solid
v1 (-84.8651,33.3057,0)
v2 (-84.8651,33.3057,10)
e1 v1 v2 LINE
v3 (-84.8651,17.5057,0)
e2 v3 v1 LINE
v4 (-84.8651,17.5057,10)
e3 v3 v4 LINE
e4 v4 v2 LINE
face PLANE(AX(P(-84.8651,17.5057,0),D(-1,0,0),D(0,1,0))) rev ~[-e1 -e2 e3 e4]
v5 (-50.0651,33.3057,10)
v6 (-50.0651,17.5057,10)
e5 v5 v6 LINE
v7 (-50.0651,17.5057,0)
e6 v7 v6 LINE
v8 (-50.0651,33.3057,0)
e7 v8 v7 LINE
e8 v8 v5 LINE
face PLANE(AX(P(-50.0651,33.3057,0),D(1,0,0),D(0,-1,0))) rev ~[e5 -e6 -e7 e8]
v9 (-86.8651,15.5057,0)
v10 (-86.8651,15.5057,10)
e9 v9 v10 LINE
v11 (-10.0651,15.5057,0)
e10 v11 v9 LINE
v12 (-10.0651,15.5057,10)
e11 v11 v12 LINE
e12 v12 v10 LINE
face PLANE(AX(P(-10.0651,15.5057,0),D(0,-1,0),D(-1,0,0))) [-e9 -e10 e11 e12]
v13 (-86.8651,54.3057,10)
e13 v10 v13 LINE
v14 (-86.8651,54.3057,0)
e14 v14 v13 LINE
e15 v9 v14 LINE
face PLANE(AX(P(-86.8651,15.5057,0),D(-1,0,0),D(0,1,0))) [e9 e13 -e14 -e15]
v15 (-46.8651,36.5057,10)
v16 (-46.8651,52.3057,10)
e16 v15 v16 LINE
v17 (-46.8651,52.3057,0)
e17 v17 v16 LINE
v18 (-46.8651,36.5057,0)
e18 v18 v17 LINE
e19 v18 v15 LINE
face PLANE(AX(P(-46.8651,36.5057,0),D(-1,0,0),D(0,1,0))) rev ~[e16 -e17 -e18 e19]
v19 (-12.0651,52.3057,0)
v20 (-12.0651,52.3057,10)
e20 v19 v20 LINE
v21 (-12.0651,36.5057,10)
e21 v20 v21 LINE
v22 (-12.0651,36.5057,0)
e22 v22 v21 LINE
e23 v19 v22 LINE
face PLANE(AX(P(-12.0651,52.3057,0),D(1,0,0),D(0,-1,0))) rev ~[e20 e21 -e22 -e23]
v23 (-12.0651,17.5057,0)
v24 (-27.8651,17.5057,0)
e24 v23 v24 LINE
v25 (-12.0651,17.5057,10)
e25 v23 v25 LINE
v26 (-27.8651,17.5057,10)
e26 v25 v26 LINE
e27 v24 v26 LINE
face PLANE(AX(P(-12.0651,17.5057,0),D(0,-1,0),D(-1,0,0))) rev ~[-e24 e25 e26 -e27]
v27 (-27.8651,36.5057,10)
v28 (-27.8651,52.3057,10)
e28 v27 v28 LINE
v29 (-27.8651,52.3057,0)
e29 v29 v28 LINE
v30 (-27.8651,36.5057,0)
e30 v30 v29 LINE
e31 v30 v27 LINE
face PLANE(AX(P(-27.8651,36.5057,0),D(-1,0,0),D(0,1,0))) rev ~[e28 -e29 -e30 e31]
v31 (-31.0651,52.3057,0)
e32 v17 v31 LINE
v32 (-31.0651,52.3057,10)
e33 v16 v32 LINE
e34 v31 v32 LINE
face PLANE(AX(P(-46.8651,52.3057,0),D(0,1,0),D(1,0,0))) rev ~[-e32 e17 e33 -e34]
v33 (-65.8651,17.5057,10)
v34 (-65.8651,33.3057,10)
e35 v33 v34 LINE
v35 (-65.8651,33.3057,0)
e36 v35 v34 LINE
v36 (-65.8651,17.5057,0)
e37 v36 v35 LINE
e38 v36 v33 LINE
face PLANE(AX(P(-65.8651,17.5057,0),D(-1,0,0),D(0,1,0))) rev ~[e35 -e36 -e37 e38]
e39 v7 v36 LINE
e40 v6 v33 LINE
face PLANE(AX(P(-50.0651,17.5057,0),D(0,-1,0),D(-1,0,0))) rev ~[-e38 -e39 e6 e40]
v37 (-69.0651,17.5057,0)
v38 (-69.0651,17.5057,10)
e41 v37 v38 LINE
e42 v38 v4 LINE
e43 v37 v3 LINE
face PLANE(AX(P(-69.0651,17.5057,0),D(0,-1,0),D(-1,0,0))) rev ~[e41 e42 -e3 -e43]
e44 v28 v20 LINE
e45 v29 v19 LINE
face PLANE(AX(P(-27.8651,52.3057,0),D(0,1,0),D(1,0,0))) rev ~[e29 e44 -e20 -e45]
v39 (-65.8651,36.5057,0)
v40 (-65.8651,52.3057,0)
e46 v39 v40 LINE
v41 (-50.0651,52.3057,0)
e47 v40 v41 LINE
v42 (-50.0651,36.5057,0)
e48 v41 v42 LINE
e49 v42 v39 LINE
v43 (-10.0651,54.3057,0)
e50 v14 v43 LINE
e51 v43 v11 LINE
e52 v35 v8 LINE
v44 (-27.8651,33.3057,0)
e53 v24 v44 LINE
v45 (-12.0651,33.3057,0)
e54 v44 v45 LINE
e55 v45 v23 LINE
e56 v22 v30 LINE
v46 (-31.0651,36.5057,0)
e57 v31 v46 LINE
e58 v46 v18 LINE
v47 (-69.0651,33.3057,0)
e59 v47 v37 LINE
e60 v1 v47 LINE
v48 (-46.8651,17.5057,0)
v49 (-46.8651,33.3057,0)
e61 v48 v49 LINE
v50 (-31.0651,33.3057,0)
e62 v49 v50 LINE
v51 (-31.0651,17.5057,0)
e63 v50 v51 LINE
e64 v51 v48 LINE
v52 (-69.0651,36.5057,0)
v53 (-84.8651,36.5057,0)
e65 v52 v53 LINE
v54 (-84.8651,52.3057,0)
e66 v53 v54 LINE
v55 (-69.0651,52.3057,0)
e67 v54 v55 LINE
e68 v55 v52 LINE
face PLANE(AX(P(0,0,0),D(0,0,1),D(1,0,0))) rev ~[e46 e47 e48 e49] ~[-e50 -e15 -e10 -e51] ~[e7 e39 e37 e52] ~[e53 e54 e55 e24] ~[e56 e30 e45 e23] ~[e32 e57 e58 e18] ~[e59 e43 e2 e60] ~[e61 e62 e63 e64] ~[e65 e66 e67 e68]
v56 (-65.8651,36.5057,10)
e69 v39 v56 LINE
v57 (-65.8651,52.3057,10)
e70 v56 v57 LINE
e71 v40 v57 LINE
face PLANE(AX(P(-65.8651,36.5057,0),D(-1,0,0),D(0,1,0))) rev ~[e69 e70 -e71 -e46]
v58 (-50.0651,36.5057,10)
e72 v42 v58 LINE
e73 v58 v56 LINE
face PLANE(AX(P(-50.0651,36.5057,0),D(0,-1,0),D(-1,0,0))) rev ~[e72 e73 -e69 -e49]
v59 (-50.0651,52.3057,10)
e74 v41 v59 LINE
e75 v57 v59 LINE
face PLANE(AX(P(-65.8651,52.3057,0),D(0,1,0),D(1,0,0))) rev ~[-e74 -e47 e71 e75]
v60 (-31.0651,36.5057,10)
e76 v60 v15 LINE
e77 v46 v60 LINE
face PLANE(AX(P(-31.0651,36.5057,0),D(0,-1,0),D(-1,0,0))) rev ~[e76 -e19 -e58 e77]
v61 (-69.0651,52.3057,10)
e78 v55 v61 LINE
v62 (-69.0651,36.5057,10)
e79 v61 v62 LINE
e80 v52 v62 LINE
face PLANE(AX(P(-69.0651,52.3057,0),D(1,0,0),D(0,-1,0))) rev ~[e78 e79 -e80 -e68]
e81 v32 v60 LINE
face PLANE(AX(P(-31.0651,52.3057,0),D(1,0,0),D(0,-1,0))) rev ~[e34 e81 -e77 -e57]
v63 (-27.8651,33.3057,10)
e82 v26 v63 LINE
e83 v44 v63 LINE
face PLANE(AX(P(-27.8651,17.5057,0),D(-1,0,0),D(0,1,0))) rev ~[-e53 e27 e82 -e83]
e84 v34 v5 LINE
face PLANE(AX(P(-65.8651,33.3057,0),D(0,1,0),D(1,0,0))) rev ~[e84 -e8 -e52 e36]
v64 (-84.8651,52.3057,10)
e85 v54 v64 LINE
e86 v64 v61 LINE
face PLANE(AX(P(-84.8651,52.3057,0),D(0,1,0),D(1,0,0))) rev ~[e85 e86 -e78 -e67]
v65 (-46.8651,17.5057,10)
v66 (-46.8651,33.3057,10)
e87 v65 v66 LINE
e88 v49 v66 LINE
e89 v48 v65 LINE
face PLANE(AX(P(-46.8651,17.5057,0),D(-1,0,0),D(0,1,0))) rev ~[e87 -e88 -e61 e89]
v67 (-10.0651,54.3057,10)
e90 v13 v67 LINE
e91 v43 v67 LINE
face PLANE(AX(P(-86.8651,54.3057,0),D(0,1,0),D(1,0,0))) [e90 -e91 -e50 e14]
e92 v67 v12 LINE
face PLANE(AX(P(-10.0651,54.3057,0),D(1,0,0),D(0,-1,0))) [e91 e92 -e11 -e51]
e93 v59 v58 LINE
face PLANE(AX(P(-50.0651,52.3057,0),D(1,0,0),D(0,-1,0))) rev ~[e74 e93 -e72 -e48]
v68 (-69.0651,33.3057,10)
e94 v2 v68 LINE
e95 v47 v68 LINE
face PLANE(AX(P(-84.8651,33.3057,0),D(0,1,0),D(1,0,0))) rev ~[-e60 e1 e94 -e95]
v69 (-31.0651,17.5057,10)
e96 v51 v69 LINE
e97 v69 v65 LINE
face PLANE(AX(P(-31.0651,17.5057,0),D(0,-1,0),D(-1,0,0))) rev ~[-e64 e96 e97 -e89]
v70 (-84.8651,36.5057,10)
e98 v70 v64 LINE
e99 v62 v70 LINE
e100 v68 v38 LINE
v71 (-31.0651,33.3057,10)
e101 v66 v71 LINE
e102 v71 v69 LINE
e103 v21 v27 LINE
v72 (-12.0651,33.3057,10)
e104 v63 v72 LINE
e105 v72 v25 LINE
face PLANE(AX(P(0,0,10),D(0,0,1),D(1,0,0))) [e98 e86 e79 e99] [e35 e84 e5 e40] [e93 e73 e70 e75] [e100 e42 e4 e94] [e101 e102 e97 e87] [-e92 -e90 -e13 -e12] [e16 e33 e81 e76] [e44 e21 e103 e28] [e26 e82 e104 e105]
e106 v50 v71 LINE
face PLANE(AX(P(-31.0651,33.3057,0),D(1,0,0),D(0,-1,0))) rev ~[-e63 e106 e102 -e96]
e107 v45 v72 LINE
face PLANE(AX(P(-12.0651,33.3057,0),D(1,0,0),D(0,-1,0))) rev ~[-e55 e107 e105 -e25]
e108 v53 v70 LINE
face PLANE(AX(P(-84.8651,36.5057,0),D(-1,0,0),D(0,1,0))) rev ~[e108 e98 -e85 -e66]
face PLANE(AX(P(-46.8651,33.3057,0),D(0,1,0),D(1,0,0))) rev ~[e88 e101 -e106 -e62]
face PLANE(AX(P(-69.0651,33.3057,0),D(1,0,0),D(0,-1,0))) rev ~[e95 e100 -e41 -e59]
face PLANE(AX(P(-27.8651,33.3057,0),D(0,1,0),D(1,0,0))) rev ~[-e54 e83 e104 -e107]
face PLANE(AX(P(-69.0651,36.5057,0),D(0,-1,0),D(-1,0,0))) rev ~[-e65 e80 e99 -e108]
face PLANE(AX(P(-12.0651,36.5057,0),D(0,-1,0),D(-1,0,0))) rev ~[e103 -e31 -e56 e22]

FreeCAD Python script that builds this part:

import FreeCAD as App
import Part
import Sketcher
Q = App.Units.Quantity

doc = App.newDocument("Part")
body = doc.addObject("PartDesign::Body", "Body")

sketch1 = body.newObject("Sketcher::SketchObject", "Sketch")
sketch1.AttachmentSupport = (doc.getObject("XY_Plane"), [""])
sketch1.MapMode = "FlatFace"
sketch1.addGeometry(Part.LineSegment(App.Vector(-10, 54, 0), App.Vector(-87, 54, 0)), False)
sketch1.addGeometry(Part.LineSegment(App.Vector(-87, 54, 0), App.Vector(-87, 16, 0)), False)
sketch1.addGeometry(Part.LineSegment(App.Vector(-87, 16, 0), App.Vector(-10, 16, 0)), False)
sketch1.addGeometry(Part.LineSegment(App.Vector(-10, 16, 0), App.Vector(-10, 54, 0)), False)
sketch1.addGeometry(Part.LineSegment(App.Vector(-85, 18, 0), App.Vector(-85, 33, 0)), False)
sketch1.addGeometry(Part.LineSegment(App.Vector(-85, 33, 0), App.Vector(-69, 33, 0)), False)
sketch1.addGeometry(Part.LineSegment(App.Vector(-69, 33, 0), App.Vector(-69, 18, 0)), False)
sketch1.addGeometry(Part.LineSegment(App.Vector(-69, 18, 0), App.Vector(-85, 18, 0)), False)
sketch1.addGeometry(Part.LineSegment(App.Vector(-66, 33, 0), App.Vector(-50, 33, 0)), False)
sketch1.addGeometry(Part.LineSegment(App.Vector(-50, 33, 0), App.Vector(-50, 18, 0)), False)
sketch1.addGeometry(Part.LineSegment(App.Vector(-50, 18, 0), App.Vector(-66, 18, 0)), False)
sketch1.addGeometry(Part.LineSegment(App.Vector(-66, 18, 0), App.Vector(-66, 33, 0)), False)
sketch1.addGeometry(Part.LineSegment(App.Vector(-47, 33, 0), App.Vector(-31, 33, 0)), False)
sketch1.addGeometry(Part.LineSegment(App.Vector(-31, 33, 0), App.Vector(-31, 18, 0)), False)
sketch1.addGeometry(Part.LineSegment(App.Vector(-31, 18, 0), App.Vector(-47, 18, 0)), False)
sketch1.addGeometry(Part.LineSegment(App.Vector(-47, 18, 0), App.Vector(-47, 33, 0)), False)
sketch1.addGeometry(Part.LineSegment(App.Vector(-28, 33, 0), App.Vector(-12, 33, 0)), False)
sketch1.addGeometry(Part.LineSegment(App.Vector(-12, 33, 0), App.Vector(-12, 18, 0)), False)
sketch1.addGeometry(Part.LineSegment(App.Vector(-12, 18, 0), App.Vector(-28, 18, 0)), False)
sketch1.addGeometry(Part.LineSegment(App.Vector(-28, 18, 0), App.Vector(-28, 33, 0)), False)
sketch1.addGeometry(Part.LineSegment(App.Vector(-85, 52, 0), App.Vector(-69, 52, 0)), False)
sketch1.addGeometry(Part.LineSegment(App.Vector(-69, 52, 0), App.Vector(-69, 37, 0)), False)
sketch1.addGeometry(Part.LineSegment(App.Vector(-69, 37, 0), App.Vector(-85, 37, 0)), False)
sketch1.addGeometry(Part.LineSegment(App.Vector(-85, 37, 0), App.Vector(-85, 52, 0)), False)
sketch1.addGeometry(Part.LineSegment(App.Vector(-66, 52, 0), App.Vector(-50, 52, 0)), False)
sketch1.addGeometry(Part.LineSegment(App.Vector(-50, 52, 0), App.Vector(-50, 37, 0)), False)
sketch1.addGeometry(Part.LineSegment(App.Vector(-50, 37, 0), App.Vector(-66, 37, 0)), False)
sketch1.addGeometry(Part.LineSegment(App.Vector(-66, 37, 0), App.Vector(-66, 52, 0)), False)
sketch1.addGeometry(Part.LineSegment(App.Vector(-47, 52, 0), App.Vector(-31, 52, 0)), False)
sketch1.addGeometry(Part.LineSegment(App.Vector(-31, 52, 0), App.Vector(-31, 37, 0)), False)
sketch1.addGeometry(Part.LineSegment(App.Vector(-31, 37, 0), App.Vector(-47, 37, 0)), False)
sketch1.addGeometry(Part.LineSegment(App.Vector(-47, 37, 0), App.Vector(-47, 52, 0)), False)
sketch1.addGeometry(Part.LineSegment(App.Vector(-28, 52, 0), App.Vector(-12, 52, 0)), False)
sketch1.addGeometry(Part.LineSegment(App.Vector(-12, 52, 0), App.Vector(-12, 37, 0)), False)
sketch1.addGeometry(Part.LineSegment(App.Vector(-12, 37, 0), App.Vector(-28, 37, 0)), False)
sketch1.addGeometry(Part.LineSegment(App.Vector(-28, 37, 0), App.Vector(-28, 52, 0)), False)
sketch1.addConstraint(Sketcher.Constraint("Coincident", 0, 2, 1, 1))
sketch1.addConstraint(Sketcher.Constraint("Coincident", 1, 2, 2, 1))
sketch1.addConstraint(Sketcher.Constraint("Coincident", 2, 2, 3, 1))
sketch1.addConstraint(Sketcher.Constraint("Coincident", 3, 2, 0, 1))
sketch1.addConstraint(Sketcher.Constraint("Coincident", 4, 2, 5, 1))
sketch1.addConstraint(Sketcher.Constraint("Coincident", 5, 2, 6, 1))
sketch1.addConstraint(Sketcher.Constraint("Coincident", 6, 2, 7, 1))
sketch1.addConstraint(Sketcher.Constraint("Coincident", 7, 2, 4, 1))
sketch1.addConstraint(Sketcher.Constraint("Coincident", 8, 2, 9, 1))
sketch1.addConstraint(Sketcher.Constraint("Coincident", 9, 2, 10, 1))
sketch1.addConstraint(Sketcher.Constraint("Coincident", 10, 2, 11, 1))
sketch1.addConstraint(Sketcher.Constraint("Coincident", 11, 2, 8, 1))
sketch1.addConstraint(Sketcher.Constraint("Coincident", 12, 2, 13, 1))
sketch1.addConstraint(Sketcher.Constraint("Coincident", 13, 2, 14, 1))
sketch1.addConstraint(Sketcher.Constraint("Coincident", 14, 2, 15, 1))
sketch1.addConstraint(Sketcher.Constraint("Coincident", 15, 2, 12, 1))
sketch1.addConstraint(Sketcher.Constraint("Coincident", 16, 2, 17, 1))
sketch1.addConstraint(Sketcher.Constraint("Coincident", 17, 2, 18, 1))
sketch1.addConstraint(Sketcher.Constraint("Coincident", 18, 2, 19, 1))
sketch1.addConstraint(Sketcher.Constraint("Coincident", 19, 2, 16, 1))
sketch1.addConstraint(Sketcher.Constraint("Coincident", 20, 2, 21, 1))
sketch1.addConstraint(Sketcher.Constraint("Coincident", 21, 2, 22, 1))
sketch1.addConstraint(Sketcher.Constraint("Coincident", 22, 2, 23, 1))
sketch1.addConstraint(Sketcher.Constraint("Coincident", 23, 2, 20, 1))
sketch1.addConstraint(Sketcher.Constraint("Coincident", 24, 2, 25, 1))
sketch1.addConstraint(Sketcher.Constraint("Coincident", 25, 2, 26, 1))
sketch1.addConstraint(Sketcher.Constraint("Coincident", 26, 2, 27, 1))
sketch1.addConstraint(Sketcher.Constraint("Coincident", 27, 2, 24, 1))
sketch1.addConstraint(Sketcher.Constraint("Coincident", 28, 2, 29, 1))
sketch1.addConstraint(Sketcher.Constraint("Coincident", 29, 2, 30, 1))
sketch1.addConstraint(Sketcher.Constraint("Coincident", 30, 2, 31, 1))
sketch1.addConstraint(Sketcher.Constraint("Coincident", 31, 2, 28, 1))
sketch1.addConstraint(Sketcher.Constraint("Coincident", 32, 2, 33, 1))
sketch1.addConstraint(Sketcher.Constraint("Coincident", 33, 2, 34, 1))
sketch1.addConstraint(Sketcher.Constraint("Coincident", 34, 2, 35, 1))
sketch1.addConstraint(Sketcher.Constraint("Coincident", 35, 2, 32, 1))
sketch1.addConstraint(Sketcher.Constraint("Horizontal", 0))
sketch1.addConstraint(Sketcher.Constraint("Vertical", 1))
sketch1.addConstraint(Sketcher.Constraint("Horizontal", 2))
sketch1.addConstraint(Sketcher.Constraint("Vertical", 3))
sketch1.addConstraint(Sketcher.Constraint("Vertical", 4))
sketch1.addConstraint(Sketcher.Constraint("Horizontal", 5))
sketch1.addConstraint(Sketcher.Constraint("Vertical", 6))
sketch1.addConstraint(Sketcher.Constraint("Horizontal", 7))
sketch1.addConstraint(Sketcher.Constraint("Horizontal", 8))
sketch1.addConstraint(Sketcher.Constraint("Vertical", 9))
sketch1.addConstraint(Sketcher.Constraint("Horizontal", 10))
sketch1.addConstraint(Sketcher.Constraint("Vertical", 11))
sketch1.addConstraint(Sketcher.Constraint("Horizontal", 12))
sketch1.addConstraint(Sketcher.Constraint("Vertical", 13))
sketch1.addConstraint(Sketcher.Constraint("Horizontal", 14))
sketch1.addConstraint(Sketcher.Constraint("Vertical", 15))
sketch1.addConstraint(Sketcher.Constraint("Horizontal", 16))
sketch1.addConstraint(Sketcher.Constraint("Vertical", 17))
sketch1.addConstraint(Sketcher.Constraint("Horizontal", 18))
sketch1.addConstraint(Sketcher.Constraint("Vertical", 19))
sketch1.addConstraint(Sketcher.Constraint("Horizontal", 20))
sketch1.addConstraint(Sketcher.Constraint("Vertical", 21))
sketch1.addConstraint(Sketcher.Constraint("Horizontal", 22))
sketch1.addConstraint(Sketcher.Constraint("Vertical", 23))
sketch1.addConstraint(Sketcher.Constraint("Horizontal", 24))
sketch1.addConstraint(Sketcher.Constraint("Vertical", 25))
sketch1.addConstraint(Sketcher.Constraint("Horizontal", 26))
sketch1.addConstraint(Sketcher.Constraint("Vertical", 27))
sketch1.addConstraint(Sketcher.Constraint("Horizontal", 28))
sketch1.addConstraint(Sketcher.Constraint("Vertical", 29))
sketch1.addConstraint(Sketcher.Constraint("Horizontal", 30))
sketch1.addConstraint(Sketcher.Constraint("Vertical", 31))
sketch1.addConstraint(Sketcher.Constraint("Horizontal", 32))
sketch1.addConstraint(Sketcher.Constraint("Vertical", 33))
sketch1.addConstraint(Sketcher.Constraint("Horizontal", 34))
sketch1.addConstraint(Sketcher.Constraint("Vertical", 35))
sketch1.addConstraint(Sketcher.Constraint("Horizontal", 5, 2, 8, 2))
sketch1.addConstraint(Sketcher.Constraint("Horizontal", 7, 2, 9, 2))
sketch1.addConstraint(Sketcher.Constraint("Horizontal", 11, 2, 12, 2))
sketch1.addConstraint(Sketcher.Constraint("Horizontal", 10, 2, 13, 2))
sketch1.addConstraint(Sketcher.Constraint("Horizontal", 15, 2, 16, 2))
sketch1.addConstraint(Sketcher.Constraint("Horizontal", 14, 2, 17, 2))
sketch1.addConstraint(Sketcher.Constraint("Horizontal", 23, 2, 24, 2))
sketch1.addConstraint(Sketcher.Constraint("Horizontal", 22, 2, 25, 2))
sketch1.addConstraint(Sketcher.Constraint("Horizontal", 27, 2, 28, 2))
sketch1.addConstraint(Sketcher.Constraint("Horizontal", 26, 2, 29, 2))
sketch1.addConstraint(Sketcher.Constraint("Horizontal", 31, 2, 32, 2))
sketch1.addConstraint(Sketcher.Constraint("Horizontal", 30, 2, 33, 2))
sketch1.addConstraint(Sketcher.Constraint("Vertical", 6, 2, 20, 2))
sketch1.addConstraint(Sketcher.Constraint("Vertical", 7, 2, 22, 2))
sketch1.addConstraint(Sketcher.Constraint("Vertical", 9, 2, 24, 2))
sketch1.addConstraint(Sketcher.Constraint("Vertical", 11, 2, 26, 2))
sketch1.addConstraint(Sketcher.Constraint("Vertical", 13, 2, 28, 2))
sketch1.addConstraint(Sketcher.Constraint("Vertical", 15, 2, 30, 2))
sketch1.addConstraint(Sketcher.Constraint("Vertical", 17, 2, 32, 2))
sketch1.addConstraint(Sketcher.Constraint("Vertical", 19, 2, 34, 2))
sketch1.addConstraint(Sketcher.Constraint("Equal", 7, 8))
sketch1.addConstraint(Sketcher.Constraint("Equal", 10, 12))
sketch1.addConstraint(Sketcher.Constraint("Equal", 14, 16))
sketch1.addConstraint(Sketcher.Constraint("Equal", 34, 4))
sketch1.addConstraint(Sketcher.Constraint("Equal", 19, 21))
sketch1.addConstraint(Sketcher.Constraint("DistanceX", 5, 1, 5, 2, Q("15.8 mm")))
sketch1.addConstraint(Sketcher.Constraint("DistanceX", 1, 2, 4, 2, Q("2 mm")))
sketch1.addConstraint(Sketcher.Constraint("DistanceY", 1, 2, 6, 2, Q("2 mm")))
sketch1.addConstraint(Sketcher.Constraint("DistanceX", 5, 2, 8, 2, Q("19 mm")))
sketch1.addConstraint(Sketcher.Constraint("DistanceX", 8, 2, 12, 2, Q("19 mm")))
sketch1.addConstraint(Sketcher.Constraint("DistanceX", 16, 2, 2, 2, Q("2 mm")))
sketch1.addConstraint(Sketcher.Constraint("DistanceX", 12, 2, 16, 2, Q("19 mm")))
sketch1.addConstraint(Sketcher.Constraint("DistanceY", 20, 2, 0, 2, Q("2 mm")))
sketch1.addConstraint(Sketcher.Constraint("DistanceY", 5, 2, 20, 2, Q("19 mm")))
sketch1.addConstraint(Sketcher.Constraint("DistanceX", 0, 2, -1, 1, Q("86.865 mm")))
sketch1.addConstraint(Sketcher.Constraint("DistanceY", -1, 1, 0, 2, Q("54.3057 mm")))
pad1 = body.newObject("PartDesign::Pad", "Pad")
pad1.Profile = sketch1
pad1.Length = 10

doc.recompute()
